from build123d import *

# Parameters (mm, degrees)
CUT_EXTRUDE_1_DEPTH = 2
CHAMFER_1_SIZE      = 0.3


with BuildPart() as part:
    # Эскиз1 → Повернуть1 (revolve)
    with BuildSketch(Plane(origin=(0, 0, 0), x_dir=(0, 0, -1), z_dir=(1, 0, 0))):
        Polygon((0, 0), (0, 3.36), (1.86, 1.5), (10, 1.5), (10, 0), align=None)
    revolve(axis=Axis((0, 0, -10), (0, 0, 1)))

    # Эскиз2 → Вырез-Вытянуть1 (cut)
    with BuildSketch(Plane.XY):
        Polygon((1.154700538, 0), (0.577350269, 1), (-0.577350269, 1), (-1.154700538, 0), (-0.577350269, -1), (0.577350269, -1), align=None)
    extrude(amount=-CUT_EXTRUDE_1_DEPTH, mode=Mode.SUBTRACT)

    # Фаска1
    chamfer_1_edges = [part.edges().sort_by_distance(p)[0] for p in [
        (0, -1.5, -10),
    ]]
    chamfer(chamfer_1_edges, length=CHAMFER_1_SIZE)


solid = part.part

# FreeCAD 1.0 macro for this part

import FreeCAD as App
import Part
import Sketcher
Q = App.Units.Quantity


def edges_at(feature, points):
    """Names of the edges that pass closest to the given points."""
    edges = feature.Shape.Edges
    near = lambda p: min(range(len(edges)), key=lambda i: edges[i].distToShape(Part.Vertex(*p))[0])
    return sorted({f"Edge{near(p) + 1}" for p in points})

doc = App.newDocument("Part")
body = doc.addObject("PartDesign::Body", "Body")

# Sketch on YZ plane
sketch1 = doc.addObject("Sketcher::SketchObject", "Sketch")
body.addObject(sketch1)
sketch1.AttachmentSupport = (doc.YZ_Plane, [""])
sketch1.MapMode = "FlatFace"
sketch1.addGeometry(Part.LineSegment(App.Vector(3.4, 0, 0), App.Vector(0, 0, 0)), False)
sketch1.addGeometry(Part.LineSegment(App.Vector(0, 0, 0), App.Vector(0, -10, 0)), False)
sketch1.addGeometry(Part.LineSegment(App.Vector(0, -10, 0), App.Vector(1.5, -10, 0)), False)
sketch1.addGeometry(Part.LineSegment(App.Vector(1.5, -10, 0), App.Vector(1.5, -1.9, 0)), False)
sketch1.addGeometry(Part.LineSegment(App.Vector(1.5, -1.9, 0), App.Vector(3.4, 0, 0)), False)
sketch1.addConstraint(Sketcher.Constraint("Coincident", 0, 2, 1, 1))
sketch1.addConstraint(Sketcher.Constraint("Coincident", 1, 2, 2, 1))
sketch1.addConstraint(Sketcher.Constraint("Coincident", 2, 2, 3, 1))
sketch1.addConstraint(Sketcher.Constraint("Coincident", 3, 2, 4, 1))
sketch1.addConstraint(Sketcher.Constraint("Coincident", 4, 2, 0, 1))
sketch1.addConstraint(Sketcher.Constraint("Horizontal", 0))
sketch1.addConstraint(Sketcher.Constraint("Vertical", 1))
sketch1.addConstraint(Sketcher.Constraint("Horizontal", 2))
sketch1.addConstraint(Sketcher.Constraint("Vertical", 3))
sketch1.addConstraint(Sketcher.Constraint("Coincident", 0, 2, -1, 1))
sketch1.addConstraint(Sketcher.Constraint("DistanceY", 1, 2, 1, 1, 10.0))
sketch1.addConstraint(Sketcher.Constraint("Angle", 4, Q("45 deg")))
sketch1.addConstraint(Sketcher.Constraint("DistanceX", 2, 1, 2, 2, 1.5))
sketch1.addConstraint(Sketcher.Constraint("DistanceX", 0, 2, 0, 1, 3.36))
revolution = doc.addObject("PartDesign::Revolution", "Revolution")
body.addObject(revolution)
revolution.Profile = sketch1
revolution.ReferenceAxis = (sketch1, ["V_Axis"])
revolution.Angle = 360

# Sketch on XY plane
sketch2 = doc.addObject("Sketcher::SketchObject", "Sketch001")
body.addObject(sketch2)
sketch2.AttachmentSupport = (doc.XY_Plane, [""])
sketch2.MapMode = "FlatFace"
sketch2.addGeometry(Part.LineSegment(App.Vector(1.2, 0, 0), App.Vector(0.6, 1, 0)), False)
sketch2.addGeometry(Part.LineSegment(App.Vector(0.6, 1, 0), App.Vector(-0.6, 1, 0)), False)
sketch2.addGeometry(Part.LineSegment(App.Vector(-0.6, 1, 0), App.Vector(-1.2, 0, 0)), False)
sketch2.addGeometry(Part.LineSegment(App.Vector(-1.2, 0, 0), App.Vector(-0.6, -1, 0)), False)
sketch2.addGeometry(Part.LineSegment(App.Vector(-0.6, -1, 0), App.Vector(0.6, -1, 0)), False)
sketch2.addGeometry(Part.LineSegment(App.Vector(0.6, -1, 0), App.Vector(1.2, 0, 0)), False)
sketch2.addConstraint(Sketcher.Constraint("Coincident", 0, 2, 1, 1))
sketch2.addConstraint(Sketcher.Constraint("Coincident", 1, 2, 2, 1))
sketch2.addConstraint(Sketcher.Constraint("Coincident", 2, 2, 3, 1))
sketch2.addConstraint(Sketcher.Constraint("Coincident", 3, 2, 4, 1))
sketch2.addConstraint(Sketcher.Constraint("Coincident", 4, 2, 5, 1))
sketch2.addConstraint(Sketcher.Constraint("Coincident", 5, 2, 0, 1))
sketch2.addConstraint(Sketcher.Constraint("Horizontal", 1))
sketch2.addConstraint(Sketcher.Constraint("Horizontal", 4))
sketch2.addConstraint(Sketcher.Constraint("Symmetric", 0, 2, 3, 2, -1, 1))
sketch2.addConstraint(Sketcher.Constraint("Symmetric", 2, 2, 5, 2, -1, 1))
sketch2.addConstraint(Sketcher.Constraint("PointOnObject", 2, 2, -1))
sketch2.addConstraint(Sketcher.Constraint("Parallel", 2, 5))
sketch2.addConstraint(Sketcher.Constraint("Vertical", 1, 2, 3, 2))
sketch2.addConstraint(Sketcher.Constraint("Angle", 0, Q("120 deg")))
sketch2.addConstraint(Sketcher.Constraint("DistanceY", -1, 1, 0, 2, 1.0))
sketch2.addConstraint(Sketcher.Constraint("DistanceX", 1, 2, 1, 1, 1.154701))
pocket1 = doc.addObject("PartDesign::Pocket", "Pocket")
body.addObject(pocket1)
pocket1.Profile = sketch2
pocket1.Length = 2
doc.recompute()

chamfer = doc.addObject("PartDesign::Chamfer", "Chamfer")
body.addObject(chamfer)
chamfer.Base = (pocket1, edges_at(pocket1, [(0, -1.5, -10)]))
chamfer.Size = 0.3

doc.recompute()
